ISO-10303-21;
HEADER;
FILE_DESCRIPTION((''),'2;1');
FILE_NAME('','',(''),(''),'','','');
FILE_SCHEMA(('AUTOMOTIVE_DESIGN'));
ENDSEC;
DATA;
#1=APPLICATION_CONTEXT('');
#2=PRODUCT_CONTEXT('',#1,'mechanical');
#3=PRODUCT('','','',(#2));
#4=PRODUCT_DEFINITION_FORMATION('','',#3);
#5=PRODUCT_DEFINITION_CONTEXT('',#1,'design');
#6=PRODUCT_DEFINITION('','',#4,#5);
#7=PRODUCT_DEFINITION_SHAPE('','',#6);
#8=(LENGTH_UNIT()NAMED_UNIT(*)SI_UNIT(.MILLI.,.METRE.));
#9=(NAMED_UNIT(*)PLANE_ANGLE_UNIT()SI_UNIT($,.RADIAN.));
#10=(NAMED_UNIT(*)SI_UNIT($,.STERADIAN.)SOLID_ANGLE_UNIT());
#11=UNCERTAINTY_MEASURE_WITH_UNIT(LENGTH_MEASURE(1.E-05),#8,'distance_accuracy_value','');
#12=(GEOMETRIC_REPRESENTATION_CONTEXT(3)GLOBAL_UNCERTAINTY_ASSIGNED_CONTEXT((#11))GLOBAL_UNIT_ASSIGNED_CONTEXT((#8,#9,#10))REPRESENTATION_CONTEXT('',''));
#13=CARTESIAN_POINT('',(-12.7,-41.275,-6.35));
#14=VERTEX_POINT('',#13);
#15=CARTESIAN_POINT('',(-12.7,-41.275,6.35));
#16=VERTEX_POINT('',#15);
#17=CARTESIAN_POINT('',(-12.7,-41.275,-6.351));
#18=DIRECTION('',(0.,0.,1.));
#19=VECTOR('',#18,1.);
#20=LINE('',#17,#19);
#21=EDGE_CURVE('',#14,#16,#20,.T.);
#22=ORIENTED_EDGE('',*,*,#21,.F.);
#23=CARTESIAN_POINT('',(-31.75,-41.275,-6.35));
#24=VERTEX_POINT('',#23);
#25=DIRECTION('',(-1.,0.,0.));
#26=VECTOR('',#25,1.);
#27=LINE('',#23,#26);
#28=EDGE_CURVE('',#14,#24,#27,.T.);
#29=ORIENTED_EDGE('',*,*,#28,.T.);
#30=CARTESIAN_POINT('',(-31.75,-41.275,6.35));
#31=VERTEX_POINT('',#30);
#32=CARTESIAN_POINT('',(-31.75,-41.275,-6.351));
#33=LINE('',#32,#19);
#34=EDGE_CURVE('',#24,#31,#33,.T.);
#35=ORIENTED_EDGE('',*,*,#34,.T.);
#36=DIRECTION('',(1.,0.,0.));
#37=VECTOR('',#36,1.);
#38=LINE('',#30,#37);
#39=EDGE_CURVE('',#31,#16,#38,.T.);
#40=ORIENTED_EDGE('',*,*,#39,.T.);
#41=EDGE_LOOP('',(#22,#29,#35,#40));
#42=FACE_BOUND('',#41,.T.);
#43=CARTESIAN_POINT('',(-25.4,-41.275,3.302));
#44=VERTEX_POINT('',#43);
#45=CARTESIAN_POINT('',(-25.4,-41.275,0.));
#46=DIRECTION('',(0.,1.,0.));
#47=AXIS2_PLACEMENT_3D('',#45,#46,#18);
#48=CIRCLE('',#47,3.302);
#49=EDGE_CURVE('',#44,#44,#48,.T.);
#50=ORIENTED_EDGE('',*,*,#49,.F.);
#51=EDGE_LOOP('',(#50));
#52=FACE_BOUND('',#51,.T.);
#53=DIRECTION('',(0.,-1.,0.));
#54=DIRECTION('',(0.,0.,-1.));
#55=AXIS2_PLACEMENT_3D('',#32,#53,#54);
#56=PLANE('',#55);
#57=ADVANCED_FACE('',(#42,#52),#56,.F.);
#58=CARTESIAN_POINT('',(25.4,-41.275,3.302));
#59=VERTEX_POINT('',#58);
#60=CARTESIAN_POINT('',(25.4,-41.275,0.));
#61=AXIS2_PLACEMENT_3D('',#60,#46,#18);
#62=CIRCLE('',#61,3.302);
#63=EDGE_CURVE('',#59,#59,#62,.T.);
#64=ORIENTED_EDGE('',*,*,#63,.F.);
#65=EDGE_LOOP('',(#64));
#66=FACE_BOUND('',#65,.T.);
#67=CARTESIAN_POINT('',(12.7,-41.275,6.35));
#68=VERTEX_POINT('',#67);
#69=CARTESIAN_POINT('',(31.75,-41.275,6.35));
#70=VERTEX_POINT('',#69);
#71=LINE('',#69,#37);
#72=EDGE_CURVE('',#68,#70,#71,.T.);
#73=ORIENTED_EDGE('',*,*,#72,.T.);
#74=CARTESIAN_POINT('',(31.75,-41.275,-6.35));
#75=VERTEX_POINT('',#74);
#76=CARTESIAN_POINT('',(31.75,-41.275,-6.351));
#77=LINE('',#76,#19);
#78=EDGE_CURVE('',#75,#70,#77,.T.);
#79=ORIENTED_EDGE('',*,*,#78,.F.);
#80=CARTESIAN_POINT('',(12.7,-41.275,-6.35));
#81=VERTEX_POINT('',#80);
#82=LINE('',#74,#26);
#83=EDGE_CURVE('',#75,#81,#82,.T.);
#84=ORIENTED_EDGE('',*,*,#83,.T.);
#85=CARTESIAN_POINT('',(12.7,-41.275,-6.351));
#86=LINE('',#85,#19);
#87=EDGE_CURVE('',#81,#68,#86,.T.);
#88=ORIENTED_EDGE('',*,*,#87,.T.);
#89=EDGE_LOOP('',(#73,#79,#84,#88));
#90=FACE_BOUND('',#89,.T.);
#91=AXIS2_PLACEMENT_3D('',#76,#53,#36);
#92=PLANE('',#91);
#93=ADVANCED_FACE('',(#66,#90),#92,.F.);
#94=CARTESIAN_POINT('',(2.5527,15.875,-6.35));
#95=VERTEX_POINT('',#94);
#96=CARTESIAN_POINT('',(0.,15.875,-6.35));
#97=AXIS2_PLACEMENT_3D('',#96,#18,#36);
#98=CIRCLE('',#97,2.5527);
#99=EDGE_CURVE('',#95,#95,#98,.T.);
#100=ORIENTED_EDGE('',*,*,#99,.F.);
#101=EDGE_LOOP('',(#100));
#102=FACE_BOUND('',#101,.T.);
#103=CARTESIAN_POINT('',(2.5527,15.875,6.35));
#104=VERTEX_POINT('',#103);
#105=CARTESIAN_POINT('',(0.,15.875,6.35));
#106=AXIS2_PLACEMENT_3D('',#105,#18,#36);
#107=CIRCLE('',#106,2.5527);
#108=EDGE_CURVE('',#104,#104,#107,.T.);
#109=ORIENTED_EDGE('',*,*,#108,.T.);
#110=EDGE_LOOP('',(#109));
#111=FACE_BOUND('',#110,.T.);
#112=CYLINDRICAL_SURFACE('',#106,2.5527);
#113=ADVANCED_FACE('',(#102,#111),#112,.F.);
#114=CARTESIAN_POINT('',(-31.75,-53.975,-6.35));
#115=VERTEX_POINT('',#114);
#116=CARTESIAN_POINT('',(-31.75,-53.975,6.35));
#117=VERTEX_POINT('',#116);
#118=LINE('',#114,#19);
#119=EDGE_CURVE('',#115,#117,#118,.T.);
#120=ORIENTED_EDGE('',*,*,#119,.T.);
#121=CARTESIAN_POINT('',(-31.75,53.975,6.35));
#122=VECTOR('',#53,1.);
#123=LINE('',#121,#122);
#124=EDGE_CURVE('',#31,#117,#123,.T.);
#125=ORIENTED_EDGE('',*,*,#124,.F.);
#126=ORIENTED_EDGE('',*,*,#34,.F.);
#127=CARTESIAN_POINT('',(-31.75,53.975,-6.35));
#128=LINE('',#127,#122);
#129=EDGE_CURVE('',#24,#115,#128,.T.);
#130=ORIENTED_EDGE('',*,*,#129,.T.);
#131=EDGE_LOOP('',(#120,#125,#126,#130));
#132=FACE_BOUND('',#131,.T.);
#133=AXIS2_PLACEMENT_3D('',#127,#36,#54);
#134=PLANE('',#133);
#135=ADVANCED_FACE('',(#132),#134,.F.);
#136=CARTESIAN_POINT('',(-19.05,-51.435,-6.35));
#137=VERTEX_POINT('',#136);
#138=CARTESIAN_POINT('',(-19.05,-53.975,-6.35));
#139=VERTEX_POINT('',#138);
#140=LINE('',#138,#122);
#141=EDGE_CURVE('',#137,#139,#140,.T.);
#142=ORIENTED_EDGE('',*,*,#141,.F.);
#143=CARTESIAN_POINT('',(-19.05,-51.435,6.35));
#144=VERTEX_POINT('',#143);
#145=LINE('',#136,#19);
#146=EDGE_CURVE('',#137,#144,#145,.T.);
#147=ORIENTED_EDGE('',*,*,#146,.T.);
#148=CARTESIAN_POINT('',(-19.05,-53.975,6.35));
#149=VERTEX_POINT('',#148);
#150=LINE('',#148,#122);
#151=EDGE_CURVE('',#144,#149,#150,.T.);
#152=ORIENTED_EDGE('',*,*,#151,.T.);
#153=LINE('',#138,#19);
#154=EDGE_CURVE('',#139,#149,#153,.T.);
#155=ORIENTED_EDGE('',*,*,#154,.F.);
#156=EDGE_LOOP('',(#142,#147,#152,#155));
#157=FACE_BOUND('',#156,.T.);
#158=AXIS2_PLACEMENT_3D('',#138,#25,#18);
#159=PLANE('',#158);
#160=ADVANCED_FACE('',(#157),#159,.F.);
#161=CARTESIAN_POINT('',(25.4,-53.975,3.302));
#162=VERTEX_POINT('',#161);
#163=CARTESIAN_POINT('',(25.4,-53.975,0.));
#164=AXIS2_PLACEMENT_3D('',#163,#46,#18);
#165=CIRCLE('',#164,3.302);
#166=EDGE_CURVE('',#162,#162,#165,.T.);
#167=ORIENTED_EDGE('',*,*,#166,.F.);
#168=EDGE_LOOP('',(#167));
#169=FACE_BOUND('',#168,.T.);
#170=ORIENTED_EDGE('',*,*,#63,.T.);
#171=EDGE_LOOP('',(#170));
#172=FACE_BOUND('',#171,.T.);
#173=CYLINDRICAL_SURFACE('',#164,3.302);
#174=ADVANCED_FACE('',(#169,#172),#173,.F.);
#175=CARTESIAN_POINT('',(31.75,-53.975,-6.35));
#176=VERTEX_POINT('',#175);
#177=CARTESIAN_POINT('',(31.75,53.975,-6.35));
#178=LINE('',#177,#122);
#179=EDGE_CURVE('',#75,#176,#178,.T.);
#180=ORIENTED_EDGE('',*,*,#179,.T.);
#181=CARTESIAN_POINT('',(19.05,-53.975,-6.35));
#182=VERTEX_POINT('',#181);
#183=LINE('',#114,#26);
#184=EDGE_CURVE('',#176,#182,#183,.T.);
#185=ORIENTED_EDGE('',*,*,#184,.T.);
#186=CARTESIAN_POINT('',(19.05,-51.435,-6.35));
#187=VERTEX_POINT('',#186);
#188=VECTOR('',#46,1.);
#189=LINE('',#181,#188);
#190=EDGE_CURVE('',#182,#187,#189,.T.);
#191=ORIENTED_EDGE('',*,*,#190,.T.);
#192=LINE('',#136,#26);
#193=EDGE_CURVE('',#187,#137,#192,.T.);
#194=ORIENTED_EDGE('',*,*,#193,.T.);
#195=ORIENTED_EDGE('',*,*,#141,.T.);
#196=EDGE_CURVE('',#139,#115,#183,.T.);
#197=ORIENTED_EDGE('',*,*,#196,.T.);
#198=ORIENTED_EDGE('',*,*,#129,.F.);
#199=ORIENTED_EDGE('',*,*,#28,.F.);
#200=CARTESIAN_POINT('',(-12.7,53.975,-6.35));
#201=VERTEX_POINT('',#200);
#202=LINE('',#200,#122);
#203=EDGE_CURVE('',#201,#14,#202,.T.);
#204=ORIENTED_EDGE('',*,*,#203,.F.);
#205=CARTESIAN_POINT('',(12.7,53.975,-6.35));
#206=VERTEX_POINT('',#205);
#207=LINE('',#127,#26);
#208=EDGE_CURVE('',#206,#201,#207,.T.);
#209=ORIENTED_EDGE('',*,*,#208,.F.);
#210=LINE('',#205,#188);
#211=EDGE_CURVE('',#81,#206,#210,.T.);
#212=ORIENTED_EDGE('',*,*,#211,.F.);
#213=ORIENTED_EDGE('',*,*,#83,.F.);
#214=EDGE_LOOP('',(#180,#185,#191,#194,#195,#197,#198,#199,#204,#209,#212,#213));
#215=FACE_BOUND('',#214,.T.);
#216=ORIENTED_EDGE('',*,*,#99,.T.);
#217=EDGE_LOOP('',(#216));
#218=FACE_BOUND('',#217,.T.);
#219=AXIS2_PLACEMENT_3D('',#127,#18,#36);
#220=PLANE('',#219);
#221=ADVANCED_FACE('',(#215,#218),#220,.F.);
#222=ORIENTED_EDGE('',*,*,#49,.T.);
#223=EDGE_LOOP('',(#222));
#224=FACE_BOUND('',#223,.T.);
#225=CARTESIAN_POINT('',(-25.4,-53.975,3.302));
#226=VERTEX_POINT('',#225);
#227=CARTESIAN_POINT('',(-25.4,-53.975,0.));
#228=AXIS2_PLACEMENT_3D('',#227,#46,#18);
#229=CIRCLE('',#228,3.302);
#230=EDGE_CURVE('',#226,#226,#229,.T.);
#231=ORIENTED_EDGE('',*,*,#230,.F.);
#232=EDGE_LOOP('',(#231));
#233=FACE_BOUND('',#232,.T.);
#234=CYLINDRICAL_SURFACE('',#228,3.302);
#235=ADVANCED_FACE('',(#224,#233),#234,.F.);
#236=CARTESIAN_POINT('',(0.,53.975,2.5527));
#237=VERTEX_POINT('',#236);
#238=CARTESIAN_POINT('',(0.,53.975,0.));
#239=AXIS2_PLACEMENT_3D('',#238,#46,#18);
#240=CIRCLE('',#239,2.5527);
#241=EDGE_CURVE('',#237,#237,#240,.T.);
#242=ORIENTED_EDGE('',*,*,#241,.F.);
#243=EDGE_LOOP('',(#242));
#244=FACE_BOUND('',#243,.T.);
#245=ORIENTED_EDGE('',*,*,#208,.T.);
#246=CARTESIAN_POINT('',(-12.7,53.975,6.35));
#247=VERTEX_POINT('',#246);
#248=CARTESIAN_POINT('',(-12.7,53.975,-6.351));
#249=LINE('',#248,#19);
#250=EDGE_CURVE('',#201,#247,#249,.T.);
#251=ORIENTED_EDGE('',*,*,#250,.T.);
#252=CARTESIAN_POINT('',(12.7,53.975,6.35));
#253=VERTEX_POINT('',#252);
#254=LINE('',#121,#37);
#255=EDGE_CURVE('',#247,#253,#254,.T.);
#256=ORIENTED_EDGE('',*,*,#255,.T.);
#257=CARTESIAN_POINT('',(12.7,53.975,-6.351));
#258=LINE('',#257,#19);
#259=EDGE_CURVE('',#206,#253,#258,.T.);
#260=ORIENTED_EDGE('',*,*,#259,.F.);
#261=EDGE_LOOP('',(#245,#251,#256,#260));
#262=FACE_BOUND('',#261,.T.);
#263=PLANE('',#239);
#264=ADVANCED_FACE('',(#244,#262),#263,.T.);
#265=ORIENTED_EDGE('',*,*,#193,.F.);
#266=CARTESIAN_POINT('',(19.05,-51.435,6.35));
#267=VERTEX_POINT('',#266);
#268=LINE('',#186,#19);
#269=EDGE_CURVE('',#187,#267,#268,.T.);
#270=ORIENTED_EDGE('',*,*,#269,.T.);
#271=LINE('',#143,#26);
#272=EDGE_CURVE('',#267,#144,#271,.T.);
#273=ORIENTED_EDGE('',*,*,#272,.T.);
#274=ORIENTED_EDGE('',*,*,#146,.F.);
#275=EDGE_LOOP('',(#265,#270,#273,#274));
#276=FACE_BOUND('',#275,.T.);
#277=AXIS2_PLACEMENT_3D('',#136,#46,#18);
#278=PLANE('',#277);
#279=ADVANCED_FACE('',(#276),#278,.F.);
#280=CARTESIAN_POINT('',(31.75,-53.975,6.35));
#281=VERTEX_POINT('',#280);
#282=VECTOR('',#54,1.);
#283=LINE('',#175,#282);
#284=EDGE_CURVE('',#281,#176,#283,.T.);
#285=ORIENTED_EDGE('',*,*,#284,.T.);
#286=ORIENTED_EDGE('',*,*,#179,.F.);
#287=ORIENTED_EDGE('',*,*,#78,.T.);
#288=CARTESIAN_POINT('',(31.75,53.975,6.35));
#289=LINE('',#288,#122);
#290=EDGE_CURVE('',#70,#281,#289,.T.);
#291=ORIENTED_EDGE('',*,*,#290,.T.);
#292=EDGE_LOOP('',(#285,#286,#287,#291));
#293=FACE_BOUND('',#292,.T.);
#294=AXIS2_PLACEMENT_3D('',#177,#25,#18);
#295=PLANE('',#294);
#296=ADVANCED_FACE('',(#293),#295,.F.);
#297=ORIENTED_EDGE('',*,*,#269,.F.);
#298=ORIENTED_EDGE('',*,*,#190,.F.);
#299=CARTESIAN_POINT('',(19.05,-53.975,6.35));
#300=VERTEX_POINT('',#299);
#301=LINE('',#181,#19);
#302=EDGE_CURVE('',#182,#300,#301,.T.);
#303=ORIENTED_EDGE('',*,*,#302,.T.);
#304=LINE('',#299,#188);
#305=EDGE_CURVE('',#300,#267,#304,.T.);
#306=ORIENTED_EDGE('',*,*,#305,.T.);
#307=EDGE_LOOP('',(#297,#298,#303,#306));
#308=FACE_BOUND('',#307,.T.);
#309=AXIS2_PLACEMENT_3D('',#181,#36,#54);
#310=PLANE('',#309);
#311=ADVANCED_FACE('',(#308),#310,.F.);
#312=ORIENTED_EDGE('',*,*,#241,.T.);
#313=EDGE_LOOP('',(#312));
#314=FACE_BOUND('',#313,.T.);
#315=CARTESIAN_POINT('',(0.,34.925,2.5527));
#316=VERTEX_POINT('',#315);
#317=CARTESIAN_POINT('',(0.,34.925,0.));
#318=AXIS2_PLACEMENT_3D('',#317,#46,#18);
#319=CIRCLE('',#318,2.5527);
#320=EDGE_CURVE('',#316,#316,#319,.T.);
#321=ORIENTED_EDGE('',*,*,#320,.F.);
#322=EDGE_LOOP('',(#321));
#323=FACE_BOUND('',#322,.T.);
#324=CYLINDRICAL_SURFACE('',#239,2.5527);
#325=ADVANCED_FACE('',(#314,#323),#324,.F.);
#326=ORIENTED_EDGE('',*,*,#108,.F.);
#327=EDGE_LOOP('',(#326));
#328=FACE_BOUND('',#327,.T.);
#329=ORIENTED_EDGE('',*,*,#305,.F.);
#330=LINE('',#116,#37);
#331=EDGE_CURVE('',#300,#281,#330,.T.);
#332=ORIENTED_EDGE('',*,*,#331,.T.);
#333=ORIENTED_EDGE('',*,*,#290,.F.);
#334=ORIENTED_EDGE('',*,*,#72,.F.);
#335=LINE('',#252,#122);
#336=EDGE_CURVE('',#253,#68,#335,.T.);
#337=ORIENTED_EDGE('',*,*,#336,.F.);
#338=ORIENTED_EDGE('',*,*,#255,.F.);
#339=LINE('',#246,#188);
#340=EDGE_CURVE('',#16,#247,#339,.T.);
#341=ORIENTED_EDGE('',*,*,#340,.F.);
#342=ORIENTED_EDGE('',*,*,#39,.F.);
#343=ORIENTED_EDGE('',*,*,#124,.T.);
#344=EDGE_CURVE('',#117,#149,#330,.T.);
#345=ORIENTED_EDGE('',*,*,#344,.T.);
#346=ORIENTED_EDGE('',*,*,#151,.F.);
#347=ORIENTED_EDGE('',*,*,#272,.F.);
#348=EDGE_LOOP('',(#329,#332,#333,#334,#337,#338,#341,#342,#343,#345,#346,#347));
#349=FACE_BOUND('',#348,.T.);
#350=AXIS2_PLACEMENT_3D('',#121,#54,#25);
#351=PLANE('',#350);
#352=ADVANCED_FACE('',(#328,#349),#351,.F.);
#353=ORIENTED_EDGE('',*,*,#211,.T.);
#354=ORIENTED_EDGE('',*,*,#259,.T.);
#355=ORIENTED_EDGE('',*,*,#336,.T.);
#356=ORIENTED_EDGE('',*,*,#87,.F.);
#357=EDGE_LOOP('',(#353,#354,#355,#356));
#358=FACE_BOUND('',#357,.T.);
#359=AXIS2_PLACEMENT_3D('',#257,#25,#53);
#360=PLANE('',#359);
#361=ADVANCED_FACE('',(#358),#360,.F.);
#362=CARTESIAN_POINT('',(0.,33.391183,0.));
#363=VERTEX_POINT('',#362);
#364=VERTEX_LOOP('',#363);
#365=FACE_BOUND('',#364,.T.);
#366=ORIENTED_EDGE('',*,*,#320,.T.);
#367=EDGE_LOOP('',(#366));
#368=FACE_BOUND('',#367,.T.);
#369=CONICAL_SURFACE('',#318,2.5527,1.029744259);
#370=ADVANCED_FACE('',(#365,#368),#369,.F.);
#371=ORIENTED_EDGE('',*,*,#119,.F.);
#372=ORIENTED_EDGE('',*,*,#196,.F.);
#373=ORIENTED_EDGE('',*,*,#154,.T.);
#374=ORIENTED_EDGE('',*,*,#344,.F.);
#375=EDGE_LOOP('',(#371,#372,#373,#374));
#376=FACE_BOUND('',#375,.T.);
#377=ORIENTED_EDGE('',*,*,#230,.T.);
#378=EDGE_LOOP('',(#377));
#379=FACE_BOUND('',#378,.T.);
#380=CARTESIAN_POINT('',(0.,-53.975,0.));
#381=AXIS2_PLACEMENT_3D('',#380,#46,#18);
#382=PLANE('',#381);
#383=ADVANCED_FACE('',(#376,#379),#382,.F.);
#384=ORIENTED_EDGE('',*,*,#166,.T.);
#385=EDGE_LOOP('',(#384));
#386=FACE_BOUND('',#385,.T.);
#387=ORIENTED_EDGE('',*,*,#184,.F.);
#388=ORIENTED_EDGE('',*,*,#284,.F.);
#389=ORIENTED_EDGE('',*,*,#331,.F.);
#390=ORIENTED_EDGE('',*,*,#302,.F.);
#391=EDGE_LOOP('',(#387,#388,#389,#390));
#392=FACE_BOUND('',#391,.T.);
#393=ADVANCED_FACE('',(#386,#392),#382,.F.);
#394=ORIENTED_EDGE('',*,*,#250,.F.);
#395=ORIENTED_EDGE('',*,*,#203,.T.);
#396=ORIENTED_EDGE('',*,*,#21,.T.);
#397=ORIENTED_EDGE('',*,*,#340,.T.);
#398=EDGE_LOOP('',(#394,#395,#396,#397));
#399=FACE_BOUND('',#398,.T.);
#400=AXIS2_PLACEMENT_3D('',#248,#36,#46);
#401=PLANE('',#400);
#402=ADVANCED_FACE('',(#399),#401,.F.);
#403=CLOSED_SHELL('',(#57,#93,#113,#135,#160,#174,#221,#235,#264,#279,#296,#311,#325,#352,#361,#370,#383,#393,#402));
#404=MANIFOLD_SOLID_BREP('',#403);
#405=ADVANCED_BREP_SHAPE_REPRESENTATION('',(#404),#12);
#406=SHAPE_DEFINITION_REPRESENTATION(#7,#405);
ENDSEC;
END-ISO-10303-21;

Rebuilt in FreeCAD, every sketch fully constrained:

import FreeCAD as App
import Part
import Sketcher
Q = App.Units.Quantity

doc = App.newDocument("Part")
body = doc.addObject("PartDesign::Body", "Body")

# Sketch on XZ plane
sketch1 = body.newObject("Sketcher::SketchObject", "Sketch")
sketch1.AttachmentSupport = (doc.getObject("XZ_Plane"), [""])
sketch1.MapMode = "FlatFace"
sketch1.addGeometry([
    Part.LineSegment(App.Vector(-32, -6, 0), App.Vector(-32, 6, 0)),
    Part.LineSegment(App.Vector(-32, 6, 0), App.Vector(32, 6, 0)),
    Part.LineSegment(App.Vector(32, 6, 0), App.Vector(32, -6, 0)),
    Part.LineSegment(App.Vector(32, -6, 0), App.Vector(-32, -6, 0)),
], False)
sketch1.addConstraint([
    Sketcher.Constraint("Coincident", 0, 2, 1, 1),
    Sketcher.Constraint("Coincident", 1, 2, 2, 1),
    Sketcher.Constraint("Coincident", 2, 2, 3, 1),
    Sketcher.Constraint("Coincident", 3, 2, 0, 1),
    Sketcher.Constraint("Vertical", 0),
    Sketcher.Constraint("Horizontal", 1),
    Sketcher.Constraint("Vertical", 2),
    Sketcher.Constraint("Horizontal", 3),
    Sketcher.Constraint("Symmetric", 0, 2, 2, 2, -1, 1),
    Sketcher.Constraint("DistanceX", 1, 1, 1, 2, Q("2.5 in")),
    Sketcher.Constraint("DistanceY", 0, 1, 0, 2, Q("0.5 in")),
])
pad1 = body.newObject("PartDesign::Pad", "Pad")
pad1.Profile = sketch1
pad1.Length = Q("4.25 in")
pad1.Midplane = True

# Sketch on XY plane
sketch2 = body.newObject("Sketcher::SketchObject", "Sketch001")
sketch2.AttachmentSupport = (doc.getObject("XY_Plane"), [""])
sketch2.MapMode = "FlatFace"
sketch2.AttachmentOffset = App.Placement(App.Vector(0, 0, 0.25 * 25.4), App.Rotation())
sketch2.addGeometry([
    Part.LineSegment(App.Vector(-32, 54, 0), App.Vector(-32, -41, 0)),
    Part.LineSegment(App.Vector(-32, -41, 0), App.Vector(-13, -41, 0)),
    Part.LineSegment(App.Vector(-13, -41, 0), App.Vector(-13, 54, 0)),
    Part.LineSegment(App.Vector(-13, 54, 0), App.Vector(-32, 54, 0)),
], False)
sketch2.addConstraint([
    Sketcher.Constraint("Coincident", 0, 2, 1, 1),
    Sketcher.Constraint("Coincident", 1, 2, 2, 1),
    Sketcher.Constraint("Coincident", 2, 2, 3, 1),
    Sketcher.Constraint("Coincident", 3, 2, 0, 1),
    Sketcher.Constraint("Vertical", 0),
    Sketcher.Constraint("Horizontal", 1),
    Sketcher.Constraint("Vertical", 2),
    Sketcher.Constraint("Horizontal", 3),
    Sketcher.Constraint("DistanceX", 1, 1, 1, 2, Q("0.75 in")),
    Sketcher.Constraint("DistanceY", 0, 2, 0, 1, Q("3.75 in")),
    Sketcher.Constraint("DistanceX", 1, 2, -1, 1, Q("0.5 in")),
    Sketcher.Constraint("DistanceY", 0, 2, -1, 1, Q("1.625 in")),
])
pocket1 = body.newObject("PartDesign::Pocket", "Pocket")
pocket1.Profile = sketch2
pocket1.Type = "UpToFirst"

# Sketch on XY plane
sketch3 = body.newObject("Sketcher::SketchObject", "Sketch002")
sketch3.AttachmentSupport = (doc.getObject("XY_Plane"), [""])
sketch3.MapMode = "FlatFace"
sketch3.AttachmentOffset = App.Placement(App.Vector(0, 0, 0.25 * 25.4), App.Rotation())
sketch3.addGeometry([
    Part.LineSegment(App.Vector(13, 54, 0), App.Vector(13, -41, 0)),
    Part.LineSegment(App.Vector(13, -41, 0), App.Vector(32, -41, 0)),
    Part.LineSegment(App.Vector(32, -41, 0), App.Vector(32, 54, 0)),
    Part.LineSegment(App.Vector(32, 54, 0), App.Vector(13, 54, 0)),
], False)
sketch3.addConstraint([
    Sketcher.Constraint("Coincident", 0, 2, 1, 1),
    Sketcher.Constraint("Coincident", 1, 2, 2, 1),
    Sketcher.Constraint("Coincident", 2, 2, 3, 1),
    Sketcher.Constraint("Coincident", 3, 2, 0, 1),
    Sketcher.Constraint("Vertical", 0),
    Sketcher.Constraint("Horizontal", 1),
    Sketcher.Constraint("Vertical", 2),
    Sketcher.Constraint("Horizontal", 3),
    Sketcher.Constraint("DistanceX", 1, 1, 1, 2, Q("0.75 in")),
    Sketcher.Constraint("DistanceY", 0, 2, 0, 1, Q("3.75 in")),
    Sketcher.Constraint("DistanceX", -1, 1, 0, 2, Q("0.5 in")),
    Sketcher.Constraint("DistanceY", 0, 2, -1, 1, Q("1.625 in")),
])
pocket2 = body.newObject("PartDesign::Pocket", "Pocket001")
pocket2.Profile = sketch3
pocket2.Type = "UpToFirst"

# Sketch on XZ plane
sketch4 = body.newObject("Sketcher::SketchObject", "Sketch003")
sketch4.AttachmentSupport = (doc.getObject("XZ_Plane"), [""])
sketch4.MapMode = "FlatFace"
sketch4.AttachmentOffset = App.Placement(App.Vector(0, 0, 1.625 * 25.4), App.Rotation())
sketch4.addGeometry([
    Part.Circle(App.Vector(-25.4, 0, 0), App.Vector(0, 0, 1), 3.3),
    Part.Circle(App.Vector(25.4, 0, 0), App.Vector(0, 0, 1), 3.3),
], False)
sketch4.addConstraint([
    Sketcher.Constraint("Equal", 0, 1),
    Sketcher.Constraint("Symmetric", 0, 3, 1, 3, -1, 1),
    Sketcher.Constraint("PointOnObject", 0, 3, -1),
    Sketcher.Constraint("Diameter", 0, Q("0.26 in")),
    Sketcher.Constraint("DistanceX", 0, 3, -1, 1, Q("1 in")),
])
pocket3 = body.newObject("PartDesign::Pocket", "Pocket002")
pocket3.Profile = sketch4
pocket3.Type = "ThroughAll"
pocket3.Reversed = True

# Sketch on XZ plane
sketch5 = body.newObject("Sketcher::SketchObject", "Sketch004")
sketch5.AttachmentSupport = (doc.getObject("XZ_Plane"), [""])
sketch5.MapMode = "FlatFace"
sketch5.AttachmentOffset = App.Placement(App.Vector(0, 0, -2.125 * 25.4), App.Rotation())
sketch5.addGeometry(Part.Circle(App.Vector(0, 0, 0), App.Vector(0, 0, 1), 2.6), False)
sketch5.addConstraint([
    Sketcher.Constraint("Coincident", 0, 3, -1, 1),
    Sketcher.Constraint("Diameter", 0, Q("0.201 in")),
])
doc.recompute()
hole = body.newObject("PartDesign::Hole", "Hole")
hole.Profile = sketch5
hole.ThreadType = "None"
hole.Diameter = Q("0.201 in")
hole.DepthType = "Dimension"
hole.Depth = Q("0.75 in")
hole.DrillPoint = "Angled"
hole.DrillPointAngle = 118
hole.Reversed = True

# Sketch on XY plane
sketch6 = body.newObject("Sketcher::SketchObject", "Sketch005")
sketch6.AttachmentSupport = (doc.getObject("XY_Plane"), [""])
sketch6.MapMode = "FlatFace"
sketch6.AttachmentOffset = App.Placement(App.Vector(0, 0, 0.25 * 25.4), App.Rotation())
sketch6.addGeometry([
    Part.LineSegment(App.Vector(-19.1, -51.4, 0), App.Vector(-19.1, -54, 0)),
    Part.LineSegment(App.Vector(-19.1, -54, 0), App.Vector(19.1, -54, 0)),
    Part.LineSegment(App.Vector(19.1, -54, 0), App.Vector(19.1, -51.4, 0)),
    Part.LineSegment(App.Vector(19.1, -51.4, 0), App.Vector(-19.1, -51.4, 0)),
], False)
sketch6.addConstraint([
    Sketcher.Constraint("Coincident", 0, 2, 1, 1),
    Sketcher.Constraint("Coincident", 1, 2, 2, 1),
    Sketcher.Constraint("Coincident", 2, 2, 3, 1),
    Sketcher.Constraint("Coincident", 3, 2, 0, 1),
    Sketcher.Constraint("Vertical", 0),
    Sketcher.Constraint("Horizontal", 1),
    Sketcher.Constraint("Vertical", 2),
    Sketcher.Constraint("Horizontal", 3),
    Sketcher.Constraint("DistanceX", 1, 1, 1, 2, Q("1.5 in")),
    Sketcher.Constraint("DistanceY", 0, 2, 0, 1, Q("0.1 in")),
    Sketcher.Constraint("DistanceX", 0, 2, -1, 1, Q("0.75 in")),
    Sketcher.Constraint("DistanceY", 0, 2, -1, 1, Q("2.125 in")),
])
pocket4 = body.newObject("PartDesign::Pocket", "Pocket003")
pocket4.Profile = sketch6
pocket4.Type = "ThroughAll"

# Sketch on XY plane
sketch7 = body.newObject("Sketcher::SketchObject", "Sketch006")
sketch7.AttachmentSupport = (doc.getObject("XY_Plane"), [""])
sketch7.MapMode = "FlatFace"
sketch7.AttachmentOffset = App.Placement(App.Vector(0, 0, 0.25 * 25.4), App.Rotation())
sketch7.addGeometry(Part.Circle(App.Vector(0, 15.9, 0), App.Vector(0, 0, 1), 2.6), False)
sketch7.addConstraint([
    Sketcher.Constraint("PointOnObject", 0, 3, -2),
    Sketcher.Constraint("Diameter", 0, Q("0.201 in")),
    Sketcher.Constraint("DistanceY", -1, 1, 0, 3, Q("0.625 in")),
])
doc.recompute()
hole2 = body.newObject("PartDesign::Hole", "Hole001")
hole2.Profile = sketch7
hole2.ThreadType = "None"
hole2.Diameter = Q("0.201 in")
hole2.DepthType = "Dimension"
hole2.Depth = Q("1 in")
hole2.DrillPoint = "Angled"
hole2.DrillPointAngle = 118

doc.recompute()
